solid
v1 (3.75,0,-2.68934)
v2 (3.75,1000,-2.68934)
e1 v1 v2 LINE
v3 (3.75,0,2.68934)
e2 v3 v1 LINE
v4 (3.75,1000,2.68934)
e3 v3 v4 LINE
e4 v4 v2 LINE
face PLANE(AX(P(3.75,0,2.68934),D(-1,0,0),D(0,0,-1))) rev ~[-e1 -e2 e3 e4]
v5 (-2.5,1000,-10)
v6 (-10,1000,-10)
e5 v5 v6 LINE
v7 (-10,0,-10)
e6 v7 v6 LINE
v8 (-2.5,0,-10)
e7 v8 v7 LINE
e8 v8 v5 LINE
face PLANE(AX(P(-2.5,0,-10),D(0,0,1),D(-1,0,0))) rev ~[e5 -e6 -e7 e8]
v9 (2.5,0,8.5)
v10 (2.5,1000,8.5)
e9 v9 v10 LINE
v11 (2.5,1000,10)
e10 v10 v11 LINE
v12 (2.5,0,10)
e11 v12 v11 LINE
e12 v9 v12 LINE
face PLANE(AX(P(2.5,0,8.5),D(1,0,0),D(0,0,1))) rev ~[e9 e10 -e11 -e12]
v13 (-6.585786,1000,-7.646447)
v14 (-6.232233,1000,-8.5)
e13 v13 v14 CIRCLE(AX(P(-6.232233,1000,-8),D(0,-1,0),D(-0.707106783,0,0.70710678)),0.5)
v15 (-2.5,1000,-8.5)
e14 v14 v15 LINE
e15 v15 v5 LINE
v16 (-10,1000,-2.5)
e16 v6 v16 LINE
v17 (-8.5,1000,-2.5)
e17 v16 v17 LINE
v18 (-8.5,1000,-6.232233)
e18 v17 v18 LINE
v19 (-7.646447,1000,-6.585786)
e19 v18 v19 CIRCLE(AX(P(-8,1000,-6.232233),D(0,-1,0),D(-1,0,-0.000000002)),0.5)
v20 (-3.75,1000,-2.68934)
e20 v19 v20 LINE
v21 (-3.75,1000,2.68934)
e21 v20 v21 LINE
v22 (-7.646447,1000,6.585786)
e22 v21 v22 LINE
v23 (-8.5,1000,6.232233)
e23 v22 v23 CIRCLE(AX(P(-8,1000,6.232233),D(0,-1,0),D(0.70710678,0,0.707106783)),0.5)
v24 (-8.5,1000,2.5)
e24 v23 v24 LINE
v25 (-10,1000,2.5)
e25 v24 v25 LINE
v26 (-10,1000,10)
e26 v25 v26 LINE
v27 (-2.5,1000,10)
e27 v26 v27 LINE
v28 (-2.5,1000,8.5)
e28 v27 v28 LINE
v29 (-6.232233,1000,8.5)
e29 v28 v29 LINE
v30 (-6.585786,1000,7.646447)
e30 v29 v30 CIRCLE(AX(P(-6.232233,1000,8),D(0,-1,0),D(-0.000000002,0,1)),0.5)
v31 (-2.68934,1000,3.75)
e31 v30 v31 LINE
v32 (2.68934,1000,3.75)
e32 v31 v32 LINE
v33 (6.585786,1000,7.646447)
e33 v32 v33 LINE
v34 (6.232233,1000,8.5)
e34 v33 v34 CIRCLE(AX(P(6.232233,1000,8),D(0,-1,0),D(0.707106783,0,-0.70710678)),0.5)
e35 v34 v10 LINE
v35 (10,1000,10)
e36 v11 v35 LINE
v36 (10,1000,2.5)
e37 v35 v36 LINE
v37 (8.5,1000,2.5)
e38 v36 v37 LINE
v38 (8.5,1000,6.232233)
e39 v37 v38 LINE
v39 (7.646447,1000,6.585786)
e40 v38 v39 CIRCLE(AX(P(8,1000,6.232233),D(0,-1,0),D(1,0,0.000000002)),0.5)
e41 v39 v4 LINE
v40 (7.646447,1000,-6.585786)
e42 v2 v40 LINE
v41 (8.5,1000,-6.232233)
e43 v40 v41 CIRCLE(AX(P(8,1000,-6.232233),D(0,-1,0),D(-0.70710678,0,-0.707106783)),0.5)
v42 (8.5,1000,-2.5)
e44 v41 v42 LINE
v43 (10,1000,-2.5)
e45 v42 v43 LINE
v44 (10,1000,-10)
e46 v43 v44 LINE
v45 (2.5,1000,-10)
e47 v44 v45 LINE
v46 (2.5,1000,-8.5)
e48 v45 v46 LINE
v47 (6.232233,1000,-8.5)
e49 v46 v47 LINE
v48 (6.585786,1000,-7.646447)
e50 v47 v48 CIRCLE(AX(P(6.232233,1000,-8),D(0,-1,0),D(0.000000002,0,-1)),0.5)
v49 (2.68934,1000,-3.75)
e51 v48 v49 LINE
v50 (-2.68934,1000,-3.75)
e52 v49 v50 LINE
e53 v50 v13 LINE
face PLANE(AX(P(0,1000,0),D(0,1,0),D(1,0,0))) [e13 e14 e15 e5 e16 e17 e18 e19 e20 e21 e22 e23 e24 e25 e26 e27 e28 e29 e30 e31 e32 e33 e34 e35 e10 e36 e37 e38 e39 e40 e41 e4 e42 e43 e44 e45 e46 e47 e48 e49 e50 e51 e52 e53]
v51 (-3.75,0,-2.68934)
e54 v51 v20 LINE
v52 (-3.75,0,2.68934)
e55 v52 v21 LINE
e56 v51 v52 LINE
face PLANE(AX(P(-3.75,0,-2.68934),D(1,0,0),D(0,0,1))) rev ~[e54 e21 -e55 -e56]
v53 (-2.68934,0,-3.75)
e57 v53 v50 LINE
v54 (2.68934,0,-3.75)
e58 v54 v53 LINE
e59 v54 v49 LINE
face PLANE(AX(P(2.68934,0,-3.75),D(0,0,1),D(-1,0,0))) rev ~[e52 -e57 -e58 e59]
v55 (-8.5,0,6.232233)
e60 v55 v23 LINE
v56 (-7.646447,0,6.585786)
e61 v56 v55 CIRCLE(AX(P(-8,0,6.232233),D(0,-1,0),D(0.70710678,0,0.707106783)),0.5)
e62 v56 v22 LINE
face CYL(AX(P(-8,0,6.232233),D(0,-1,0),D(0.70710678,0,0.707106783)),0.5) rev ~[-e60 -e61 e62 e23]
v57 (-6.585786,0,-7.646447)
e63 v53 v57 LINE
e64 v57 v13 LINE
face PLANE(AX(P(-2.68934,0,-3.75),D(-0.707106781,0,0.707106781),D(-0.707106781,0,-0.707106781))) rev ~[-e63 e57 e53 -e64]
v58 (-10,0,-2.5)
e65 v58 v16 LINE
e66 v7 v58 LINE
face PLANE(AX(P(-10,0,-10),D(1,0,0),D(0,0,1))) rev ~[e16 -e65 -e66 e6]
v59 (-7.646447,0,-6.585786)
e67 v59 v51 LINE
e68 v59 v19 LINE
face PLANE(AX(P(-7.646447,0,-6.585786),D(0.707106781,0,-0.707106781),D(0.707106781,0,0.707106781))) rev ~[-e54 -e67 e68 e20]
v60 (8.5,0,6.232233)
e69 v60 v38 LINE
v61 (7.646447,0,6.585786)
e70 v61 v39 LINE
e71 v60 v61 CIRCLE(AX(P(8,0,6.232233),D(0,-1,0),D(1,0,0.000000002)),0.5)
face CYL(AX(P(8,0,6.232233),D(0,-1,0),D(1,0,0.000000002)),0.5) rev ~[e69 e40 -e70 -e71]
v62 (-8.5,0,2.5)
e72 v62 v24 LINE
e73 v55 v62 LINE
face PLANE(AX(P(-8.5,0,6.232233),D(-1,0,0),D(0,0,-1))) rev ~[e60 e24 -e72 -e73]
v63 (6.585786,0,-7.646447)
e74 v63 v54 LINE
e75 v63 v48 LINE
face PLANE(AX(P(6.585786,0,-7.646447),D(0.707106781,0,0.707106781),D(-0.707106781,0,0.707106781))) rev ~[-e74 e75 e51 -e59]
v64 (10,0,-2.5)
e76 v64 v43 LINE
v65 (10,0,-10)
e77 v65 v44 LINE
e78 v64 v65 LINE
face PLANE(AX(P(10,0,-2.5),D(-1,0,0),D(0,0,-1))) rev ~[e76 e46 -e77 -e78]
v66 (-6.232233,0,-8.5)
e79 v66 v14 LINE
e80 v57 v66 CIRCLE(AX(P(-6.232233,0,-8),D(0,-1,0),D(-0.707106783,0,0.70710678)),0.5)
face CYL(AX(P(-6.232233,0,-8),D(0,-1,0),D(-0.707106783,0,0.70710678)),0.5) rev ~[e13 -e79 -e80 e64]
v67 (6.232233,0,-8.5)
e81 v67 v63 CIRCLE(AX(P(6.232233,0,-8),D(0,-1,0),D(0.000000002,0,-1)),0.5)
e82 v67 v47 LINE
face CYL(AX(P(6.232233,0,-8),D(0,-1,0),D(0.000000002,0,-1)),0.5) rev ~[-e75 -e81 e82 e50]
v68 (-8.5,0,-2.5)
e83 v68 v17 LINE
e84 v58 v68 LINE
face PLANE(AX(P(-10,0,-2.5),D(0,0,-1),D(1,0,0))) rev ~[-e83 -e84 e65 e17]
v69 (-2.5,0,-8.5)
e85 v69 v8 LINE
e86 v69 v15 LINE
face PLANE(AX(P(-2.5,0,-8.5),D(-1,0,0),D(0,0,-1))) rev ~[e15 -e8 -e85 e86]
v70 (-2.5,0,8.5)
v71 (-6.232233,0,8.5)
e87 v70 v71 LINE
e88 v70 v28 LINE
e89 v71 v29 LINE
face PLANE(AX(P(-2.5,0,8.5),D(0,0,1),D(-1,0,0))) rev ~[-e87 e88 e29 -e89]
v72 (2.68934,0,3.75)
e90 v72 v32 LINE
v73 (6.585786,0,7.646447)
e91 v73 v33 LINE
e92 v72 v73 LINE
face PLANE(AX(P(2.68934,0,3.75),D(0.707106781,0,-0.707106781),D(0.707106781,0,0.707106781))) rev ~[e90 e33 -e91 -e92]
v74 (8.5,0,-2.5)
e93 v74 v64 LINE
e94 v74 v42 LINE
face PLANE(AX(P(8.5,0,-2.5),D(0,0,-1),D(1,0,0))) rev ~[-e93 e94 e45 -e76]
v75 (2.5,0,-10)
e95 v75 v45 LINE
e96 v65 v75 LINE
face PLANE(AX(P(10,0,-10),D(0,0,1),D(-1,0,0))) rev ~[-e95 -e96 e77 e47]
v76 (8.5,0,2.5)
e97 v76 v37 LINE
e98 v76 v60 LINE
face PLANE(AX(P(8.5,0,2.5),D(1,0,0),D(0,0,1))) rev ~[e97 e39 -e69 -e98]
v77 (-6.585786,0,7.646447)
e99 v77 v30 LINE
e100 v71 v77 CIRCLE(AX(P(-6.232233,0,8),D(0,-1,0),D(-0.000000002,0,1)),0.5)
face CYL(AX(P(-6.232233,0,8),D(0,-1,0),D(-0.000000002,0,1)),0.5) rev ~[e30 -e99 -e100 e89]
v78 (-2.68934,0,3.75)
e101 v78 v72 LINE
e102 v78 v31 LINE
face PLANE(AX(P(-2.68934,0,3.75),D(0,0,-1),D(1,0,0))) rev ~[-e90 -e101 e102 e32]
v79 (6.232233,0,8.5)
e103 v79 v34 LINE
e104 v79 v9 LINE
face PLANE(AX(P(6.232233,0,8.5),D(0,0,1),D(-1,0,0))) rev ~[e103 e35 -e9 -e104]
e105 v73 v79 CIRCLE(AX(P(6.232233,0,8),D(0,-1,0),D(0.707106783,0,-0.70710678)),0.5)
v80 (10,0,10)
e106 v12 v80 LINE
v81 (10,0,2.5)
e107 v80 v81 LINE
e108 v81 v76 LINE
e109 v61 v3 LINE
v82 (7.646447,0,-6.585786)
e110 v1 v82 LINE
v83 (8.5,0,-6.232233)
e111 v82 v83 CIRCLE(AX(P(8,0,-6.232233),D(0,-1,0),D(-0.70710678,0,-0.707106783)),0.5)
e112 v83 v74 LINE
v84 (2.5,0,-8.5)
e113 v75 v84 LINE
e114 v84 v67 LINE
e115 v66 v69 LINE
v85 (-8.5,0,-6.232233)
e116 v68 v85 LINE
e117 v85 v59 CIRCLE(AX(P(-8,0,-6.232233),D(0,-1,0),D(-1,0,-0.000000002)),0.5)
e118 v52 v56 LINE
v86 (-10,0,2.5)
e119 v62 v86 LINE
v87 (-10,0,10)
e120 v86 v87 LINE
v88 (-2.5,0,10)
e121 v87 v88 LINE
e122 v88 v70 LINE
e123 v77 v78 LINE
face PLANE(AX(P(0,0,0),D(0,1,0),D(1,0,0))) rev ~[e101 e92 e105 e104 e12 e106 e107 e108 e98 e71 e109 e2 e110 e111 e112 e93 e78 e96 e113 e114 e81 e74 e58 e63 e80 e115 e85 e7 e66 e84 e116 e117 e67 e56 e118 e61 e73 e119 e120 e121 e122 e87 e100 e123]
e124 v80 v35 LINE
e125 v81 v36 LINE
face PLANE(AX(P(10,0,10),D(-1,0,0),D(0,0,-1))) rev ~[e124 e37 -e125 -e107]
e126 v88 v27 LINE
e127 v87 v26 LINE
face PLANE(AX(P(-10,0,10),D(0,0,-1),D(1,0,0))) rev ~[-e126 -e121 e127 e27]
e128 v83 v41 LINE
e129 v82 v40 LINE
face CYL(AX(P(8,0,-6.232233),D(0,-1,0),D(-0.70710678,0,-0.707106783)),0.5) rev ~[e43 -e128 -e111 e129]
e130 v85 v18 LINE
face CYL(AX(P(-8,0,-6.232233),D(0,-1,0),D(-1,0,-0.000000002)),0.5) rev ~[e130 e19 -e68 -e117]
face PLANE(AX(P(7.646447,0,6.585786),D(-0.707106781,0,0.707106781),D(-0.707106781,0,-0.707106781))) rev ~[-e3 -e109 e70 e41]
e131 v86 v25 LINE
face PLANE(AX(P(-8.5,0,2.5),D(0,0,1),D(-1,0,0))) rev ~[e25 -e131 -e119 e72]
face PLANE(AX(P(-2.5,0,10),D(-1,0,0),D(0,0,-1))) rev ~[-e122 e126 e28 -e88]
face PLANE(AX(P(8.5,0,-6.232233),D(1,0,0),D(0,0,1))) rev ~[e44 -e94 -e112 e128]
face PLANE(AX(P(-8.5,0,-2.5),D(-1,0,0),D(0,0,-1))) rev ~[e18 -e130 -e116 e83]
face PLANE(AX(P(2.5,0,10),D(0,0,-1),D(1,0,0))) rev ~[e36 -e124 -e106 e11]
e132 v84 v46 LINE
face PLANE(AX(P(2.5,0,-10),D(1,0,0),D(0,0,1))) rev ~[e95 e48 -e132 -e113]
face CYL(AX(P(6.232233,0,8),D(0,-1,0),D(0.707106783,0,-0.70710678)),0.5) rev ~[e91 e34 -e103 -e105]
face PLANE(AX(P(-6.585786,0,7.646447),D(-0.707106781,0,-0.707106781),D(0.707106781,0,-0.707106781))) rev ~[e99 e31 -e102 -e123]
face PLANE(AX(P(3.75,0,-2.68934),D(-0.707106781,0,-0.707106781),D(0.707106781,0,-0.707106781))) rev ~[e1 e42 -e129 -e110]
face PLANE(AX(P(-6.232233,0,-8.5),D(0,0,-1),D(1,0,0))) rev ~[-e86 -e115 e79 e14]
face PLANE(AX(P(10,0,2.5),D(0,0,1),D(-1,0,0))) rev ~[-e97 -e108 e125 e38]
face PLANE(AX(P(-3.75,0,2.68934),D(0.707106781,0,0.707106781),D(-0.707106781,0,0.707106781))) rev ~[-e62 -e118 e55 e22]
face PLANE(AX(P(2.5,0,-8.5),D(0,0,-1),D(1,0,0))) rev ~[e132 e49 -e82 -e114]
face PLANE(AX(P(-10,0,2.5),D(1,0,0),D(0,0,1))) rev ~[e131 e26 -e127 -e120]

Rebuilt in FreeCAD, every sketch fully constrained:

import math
import FreeCAD as App
import Part
import Sketcher

doc = App.newDocument("Part")
body = doc.addObject("PartDesign::Body", "Body")

# Sketch on XZ plane
sketch1 = body.newObject("Sketcher::SketchObject", "Sketch")
sketch1.AttachmentSupport = (doc.getObject("XZ_Plane"), [""])
sketch1.MapMode = "FlatFace"
sketch1.addGeometry([
    Part.LineSegment(App.Vector(-10, 2.5, 0), App.Vector(-10, 10, 0)),  # 0
    Part.LineSegment(App.Vector(-10, 10, 0), App.Vector(-2.5, 10, 0)),  # 1
    Part.LineSegment(App.Vector(-2.5, 10, 0), App.Vector(-2.5, 8.5, 0)),  # 2
    Part.LineSegment(App.Vector(-2.5, 8.5, 0), App.Vector(-6.2, 8.5, 0)),  # 3
    Part.ArcOfCircle(Part.Circle(App.Vector(-6.2, 8, 0), App.Vector(0, 0, 1), 0.5), math.radians(90), math.radians(225)),  # 4
    Part.LineSegment(App.Vector(-6.6, 7.6, 0), App.Vector(-2.7, 3.8, 0)),  # 5
    Part.LineSegment(App.Vector(-2.7, 3.8, 0), App.Vector(2.7, 3.8, 0)),  # 6
    Part.LineSegment(App.Vector(2.7, 3.8, 0), App.Vector(6.6, 7.6, 0)),  # 7
    Part.ArcOfCircle(Part.Circle(App.Vector(6.2, 8, 0), App.Vector(0, 0, 1), 0.5), math.radians(-45), math.radians(90)),  # 8
    Part.LineSegment(App.Vector(6.2, 8.5, 0), App.Vector(2.5, 8.5, 0)),  # 9
    Part.LineSegment(App.Vector(2.5, 8.5, 0), App.Vector(2.5, 10, 0)),  # 10
    Part.LineSegment(App.Vector(2.5, 10, 0), App.Vector(10, 10, 0)),  # 11
    Part.LineSegment(App.Vector(10, 10, 0), App.Vector(10, 2.5, 0)),  # 12
    Part.LineSegment(App.Vector(10, 2.5, 0), App.Vector(8.5, 2.5, 0)),  # 13
    Part.LineSegment(App.Vector(8.5, 2.5, 0), App.Vector(8.5, 6.2, 0)),  # 14
    Part.ArcOfCircle(Part.Circle(App.Vector(8, 6.2, 0), App.Vector(0, 0, 1), 0.5), math.radians(0), math.radians(135)),  # 15
    Part.LineSegment(App.Vector(7.6, 6.6, 0), App.Vector(3.8, 2.7, 0)),  # 16
    Part.LineSegment(App.Vector(3.8, 2.7, 0), App.Vector(3.8, -2.7, 0)),  # 17
    Part.LineSegment(App.Vector(3.8, -2.7, 0), App.Vector(7.6, -6.6, 0)),  # 18
    Part.ArcOfCircle(Part.Circle(App.Vector(8, -6.2, 0), App.Vector(0, 0, 1), 0.5), math.radians(-135), math.radians(0)),  # 19
    Part.LineSegment(App.Vector(8.5, -6.2, 0), App.Vector(8.5, -2.5, 0)),  # 20
    Part.LineSegment(App.Vector(8.5, -2.5, 0), App.Vector(10, -2.5, 0)),  # 21
    Part.LineSegment(App.Vector(10, -2.5, 0), App.Vector(10, -10, 0)),  # 22
    Part.LineSegment(App.Vector(10, -10, 0), App.Vector(2.5, -10, 0)),  # 23
    Part.LineSegment(App.Vector(2.5, -10, 0), App.Vector(2.5, -8.5, 0)),  # 24
    Part.LineSegment(App.Vector(2.5, -8.5, 0), App.Vector(6.2, -8.5, 0)),  # 25
    Part.ArcOfCircle(Part.Circle(App.Vector(6.2, -8, 0), App.Vector(0, 0, 1), 0.5), math.radians(-90), math.radians(45)),  # 26
    Part.LineSegment(App.Vector(6.6, -7.6, 0), App.Vector(2.7, -3.8, 0)),  # 27
    Part.LineSegment(App.Vector(2.7, -3.8, 0), App.Vector(-2.7, -3.8, 0)),  # 28
    Part.LineSegment(App.Vector(-2.7, -3.8, 0), App.Vector(-6.6, -7.6, 0)),  # 29
    Part.ArcOfCircle(Part.Circle(App.Vector(-6.2, -8, 0), App.Vector(0, 0, 1), 0.5), math.radians(135), math.radians(270)),  # 30
    Part.LineSegment(App.Vector(-6.2, -8.5, 0), App.Vector(-2.5, -8.5, 0)),  # 31
    Part.LineSegment(App.Vector(-2.5, -8.5, 0), App.Vector(-2.5, -10, 0)),  # 32
    Part.LineSegment(App.Vector(-2.5, -10, 0), App.Vector(-10, -10, 0)),  # 33
    Part.LineSegment(App.Vector(-10, -10, 0), App.Vector(-10, -2.5, 0)),  # 34
    Part.LineSegment(App.Vector(-10, -2.5, 0), App.Vector(-8.5, -2.5, 0)),  # 35
    Part.LineSegment(App.Vector(-8.5, -2.5, 0), App.Vector(-8.5, -6.2, 0)),  # 36
    Part.ArcOfCircle(Part.Circle(App.Vector(-8, -6.2, 0), App.Vector(0, 0, 1), 0.5), math.radians(-180), math.radians(-45)),  # 37
    Part.LineSegment(App.Vector(-7.6, -6.6, 0), App.Vector(-3.8, -2.7, 0)),  # 38
    Part.LineSegment(App.Vector(-3.8, -2.7, 0), App.Vector(-3.8, 2.7, 0)),  # 39
    Part.LineSegment(App.Vector(-3.8, 2.7, 0), App.Vector(-7.6, 6.6, 0)),  # 40
    Part.ArcOfCircle(Part.Circle(App.Vector(-8, 6.2, 0), App.Vector(0, 0, 1), 0.5), math.radians(45), math.radians(180)),  # 41
    Part.LineSegment(App.Vector(-8.5, 6.2, 0), App.Vector(-8.5, 2.5, 0)),  # 42
    Part.LineSegment(App.Vector(-8.5, 2.5, 0), App.Vector(-10, 2.5, 0)),  # 43
], False)
sketch1.addConstraint([
    Sketcher.Constraint("Coincident", 0, 2, 1, 1),
    Sketcher.Constraint("Coincident", 1, 2, 2, 1),
    Sketcher.Constraint("Coincident", 2, 2, 3, 1),
    Sketcher.Constraint("Tangent", 3, 2, 4, 1),
    Sketcher.Constraint("Tangent", 4, 2, 5, 1),
    Sketcher.Constraint("Coincident", 5, 2, 6, 1),
    Sketcher.Constraint("Coincident", 6, 2, 7, 1),
    Sketcher.Constraint("Tangent", 7, 2, 8, 1),
    Sketcher.Constraint("Tangent", 8, 2, 9, 1),
    Sketcher.Constraint("Coincident", 9, 2, 10, 1),
    Sketcher.Constraint("Coincident", 10, 2, 11, 1),
    Sketcher.Constraint("Coincident", 11, 2, 12, 1),
    Sketcher.Constraint("Coincident", 12, 2, 13, 1),
    Sketcher.Constraint("Coincident", 13, 2, 14, 1),
    Sketcher.Constraint("Tangent", 14, 2, 15, 1),
    Sketcher.Constraint("Tangent", 15, 2, 16, 1),
    Sketcher.Constraint("Coincident", 16, 2, 17, 1),
    Sketcher.Constraint("Coincident", 17, 2, 18, 1),
    Sketcher.Constraint("Tangent", 18, 2, 19, 1),
    Sketcher.Constraint("Tangent", 19, 2, 20, 1),
    Sketcher.Constraint("Coincident", 20, 2, 21, 1),
    Sketcher.Constraint("Coincident", 21, 2, 22, 1),
    Sketcher.Constraint("Coincident", 22, 2, 23, 1),
    Sketcher.Constraint("Coincident", 23, 2, 24, 1),
    Sketcher.Constraint("Coincident", 24, 2, 25, 1),
    Sketcher.Constraint("Tangent", 25, 2, 26, 1),
    Sketcher.Constraint("Tangent", 26, 2, 27, 1),
    Sketcher.Constraint("Coincident", 27, 2, 28, 1),
    Sketcher.Constraint("Coincident", 28, 2, 29, 1),
    Sketcher.Constraint("Tangent", 29, 2, 30, 1),
    Sketcher.Constraint("Tangent", 30, 2, 31, 1),
    Sketcher.Constraint("Coincident", 31, 2, 32, 1),
    Sketcher.Constraint("Coincident", 32, 2, 33, 1),
    Sketcher.Constraint("Coincident", 33, 2, 34, 1),
    Sketcher.Constraint("Coincident", 34, 2, 35, 1),
    Sketcher.Constraint("Coincident", 35, 2, 36, 1),
    Sketcher.Constraint("Tangent", 36, 2, 37, 1),
    Sketcher.Constraint("Tangent", 37, 2, 38, 1),
    Sketcher.Constraint("Coincident", 38, 2, 39, 1),
    Sketcher.Constraint("Coincident", 39, 2, 40, 1),
    Sketcher.Constraint("Tangent", 40, 2, 41, 1),
    Sketcher.Constraint("Tangent", 41, 2, 42, 1),
    Sketcher.Constraint("Coincident", 42, 2, 43, 1),
    Sketcher.Constraint("Coincident", 43, 2, 0, 1),
    Sketcher.Constraint("Vertical", 0),
    Sketcher.Constraint("Horizontal", 1),
    Sketcher.Constraint("Vertical", 2),
    Sketcher.Constraint("Horizontal", 3),
    Sketcher.Constraint("Horizontal", 6),
    Sketcher.Constraint("Horizontal", 9),
    Sketcher.Constraint("Vertical", 10),
    Sketcher.Constraint("Horizontal", 11),
    Sketcher.Constraint("Vertical", 12),
    Sketcher.Constraint("Horizontal", 13),
    Sketcher.Constraint("Vertical", 14),
    Sketcher.Constraint("Vertical", 17),
    Sketcher.Constraint("Vertical", 20),
    Sketcher.Constraint("Horizontal", 21),
    Sketcher.Constraint("Vertical", 22),
    Sketcher.Constraint("Horizontal", 23),
    Sketcher.Constraint("Vertical", 24),
    Sketcher.Constraint("Horizontal", 25),
    Sketcher.Constraint("Horizontal", 28),
    Sketcher.Constraint("Horizontal", 31),
    Sketcher.Constraint("Vertical", 32),
    Sketcher.Constraint("Horizontal", 33),
    Sketcher.Constraint("Vertical", 34),
    Sketcher.Constraint("Horizontal", 35),
    Sketcher.Constraint("Vertical", 36),
    Sketcher.Constraint("Vertical", 39),
    Sketcher.Constraint("Vertical", 42),
    Sketcher.Constraint("Horizontal", 43),
    Sketcher.Constraint("Equal", 4, 8),
    Sketcher.Constraint("Equal", 8, 15),
    Sketcher.Constraint("Equal", 15, 19),
    Sketcher.Constraint("Equal", 19, 26),
    Sketcher.Constraint("Equal", 26, 30),
    Sketcher.Constraint("Equal", 30, 37),
    Sketcher.Constraint("Equal", 37, 41),
    Sketcher.Constraint("Symmetric", 4, 3, 26, 3, -1, 1),
    Sketcher.Constraint("Symmetric", 8, 3, 30, 3, -1, 1),
    Sketcher.Constraint("Symmetric", 15, 3, 37, 3, -1, 1),
    Sketcher.Constraint("Symmetric", 19, 3, 41, 3, -1, 1),
    Sketcher.Constraint("Symmetric", 0, 2, 22, 2, -1, 1),
    Sketcher.Constraint("Symmetric", 5, 2, 27, 2, -1, 1),
    Sketcher.Constraint("Symmetric", 10, 2, 32, 2, -1, 1),
    Sketcher.Constraint("Symmetric", 12, 2, 34, 2, -1, 1),
    Sketcher.Constraint("Symmetric", 16, 2, 38, 2, -1, 1),
    Sketcher.Constraint("Symmetric", 4, 3, 8, 3, -2),
    Sketcher.Constraint("Symmetric", 19, 3, 37, 3, -2),
    Sketcher.Constraint("Symmetric", 1, 2, 10, 2, -2),
    Sketcher.Constraint("Symmetric", 21, 2, 34, 2, -2),
    Sketcher.Constraint("Perpendicular", 5, 7),
    Sketcher.Constraint("Parallel", 7, 16),
    Sketcher.Constraint("Perpendicular", 16, 18),
    Sketcher.Constraint("Perpendicular", 27, 29),
    Sketcher.Constraint("Perpendicular", 38, 40),
    Sketcher.Constraint("Horizontal", 4, 2, 7, 2),
    Sketcher.Constraint("Horizontal", 13, 2, 42, 2),
    Sketcher.Constraint("Vertical", 10, 2, 23, 2),
    Sketcher.Constraint("Equal", 33, 0),
    Sketcher.Constraint("Equal", 43, 2),
    Sketcher.Constraint("Equal", 31, 14),
    Sketcher.Constraint("Equal", 28, 17),
    Sketcher.Constraint("Equal", 7, 16),
    Sketcher.Constraint("Radius", 4, 0.5),
    Sketcher.Constraint("DistanceX", 1, 1, 1, 2, 7.5),
    Sketcher.Constraint("DistanceX", 13, 2, 13, 1, 1.5),
    Sketcher.Constraint("DistanceY", -1, 1, 4, 3, 8.0),
    Sketcher.Constraint("DistanceY", -1, 1, 5, 2, 3.75),
    Sketcher.Constraint("DistanceX", 6, 1, 6, 2, 5.37868),
])
pad1 = body.newObject("PartDesign::Pad", "Pad")
pad1.Profile = sketch1
pad1.Length = 1000
pad1.Reversed = True

doc.recompute()
